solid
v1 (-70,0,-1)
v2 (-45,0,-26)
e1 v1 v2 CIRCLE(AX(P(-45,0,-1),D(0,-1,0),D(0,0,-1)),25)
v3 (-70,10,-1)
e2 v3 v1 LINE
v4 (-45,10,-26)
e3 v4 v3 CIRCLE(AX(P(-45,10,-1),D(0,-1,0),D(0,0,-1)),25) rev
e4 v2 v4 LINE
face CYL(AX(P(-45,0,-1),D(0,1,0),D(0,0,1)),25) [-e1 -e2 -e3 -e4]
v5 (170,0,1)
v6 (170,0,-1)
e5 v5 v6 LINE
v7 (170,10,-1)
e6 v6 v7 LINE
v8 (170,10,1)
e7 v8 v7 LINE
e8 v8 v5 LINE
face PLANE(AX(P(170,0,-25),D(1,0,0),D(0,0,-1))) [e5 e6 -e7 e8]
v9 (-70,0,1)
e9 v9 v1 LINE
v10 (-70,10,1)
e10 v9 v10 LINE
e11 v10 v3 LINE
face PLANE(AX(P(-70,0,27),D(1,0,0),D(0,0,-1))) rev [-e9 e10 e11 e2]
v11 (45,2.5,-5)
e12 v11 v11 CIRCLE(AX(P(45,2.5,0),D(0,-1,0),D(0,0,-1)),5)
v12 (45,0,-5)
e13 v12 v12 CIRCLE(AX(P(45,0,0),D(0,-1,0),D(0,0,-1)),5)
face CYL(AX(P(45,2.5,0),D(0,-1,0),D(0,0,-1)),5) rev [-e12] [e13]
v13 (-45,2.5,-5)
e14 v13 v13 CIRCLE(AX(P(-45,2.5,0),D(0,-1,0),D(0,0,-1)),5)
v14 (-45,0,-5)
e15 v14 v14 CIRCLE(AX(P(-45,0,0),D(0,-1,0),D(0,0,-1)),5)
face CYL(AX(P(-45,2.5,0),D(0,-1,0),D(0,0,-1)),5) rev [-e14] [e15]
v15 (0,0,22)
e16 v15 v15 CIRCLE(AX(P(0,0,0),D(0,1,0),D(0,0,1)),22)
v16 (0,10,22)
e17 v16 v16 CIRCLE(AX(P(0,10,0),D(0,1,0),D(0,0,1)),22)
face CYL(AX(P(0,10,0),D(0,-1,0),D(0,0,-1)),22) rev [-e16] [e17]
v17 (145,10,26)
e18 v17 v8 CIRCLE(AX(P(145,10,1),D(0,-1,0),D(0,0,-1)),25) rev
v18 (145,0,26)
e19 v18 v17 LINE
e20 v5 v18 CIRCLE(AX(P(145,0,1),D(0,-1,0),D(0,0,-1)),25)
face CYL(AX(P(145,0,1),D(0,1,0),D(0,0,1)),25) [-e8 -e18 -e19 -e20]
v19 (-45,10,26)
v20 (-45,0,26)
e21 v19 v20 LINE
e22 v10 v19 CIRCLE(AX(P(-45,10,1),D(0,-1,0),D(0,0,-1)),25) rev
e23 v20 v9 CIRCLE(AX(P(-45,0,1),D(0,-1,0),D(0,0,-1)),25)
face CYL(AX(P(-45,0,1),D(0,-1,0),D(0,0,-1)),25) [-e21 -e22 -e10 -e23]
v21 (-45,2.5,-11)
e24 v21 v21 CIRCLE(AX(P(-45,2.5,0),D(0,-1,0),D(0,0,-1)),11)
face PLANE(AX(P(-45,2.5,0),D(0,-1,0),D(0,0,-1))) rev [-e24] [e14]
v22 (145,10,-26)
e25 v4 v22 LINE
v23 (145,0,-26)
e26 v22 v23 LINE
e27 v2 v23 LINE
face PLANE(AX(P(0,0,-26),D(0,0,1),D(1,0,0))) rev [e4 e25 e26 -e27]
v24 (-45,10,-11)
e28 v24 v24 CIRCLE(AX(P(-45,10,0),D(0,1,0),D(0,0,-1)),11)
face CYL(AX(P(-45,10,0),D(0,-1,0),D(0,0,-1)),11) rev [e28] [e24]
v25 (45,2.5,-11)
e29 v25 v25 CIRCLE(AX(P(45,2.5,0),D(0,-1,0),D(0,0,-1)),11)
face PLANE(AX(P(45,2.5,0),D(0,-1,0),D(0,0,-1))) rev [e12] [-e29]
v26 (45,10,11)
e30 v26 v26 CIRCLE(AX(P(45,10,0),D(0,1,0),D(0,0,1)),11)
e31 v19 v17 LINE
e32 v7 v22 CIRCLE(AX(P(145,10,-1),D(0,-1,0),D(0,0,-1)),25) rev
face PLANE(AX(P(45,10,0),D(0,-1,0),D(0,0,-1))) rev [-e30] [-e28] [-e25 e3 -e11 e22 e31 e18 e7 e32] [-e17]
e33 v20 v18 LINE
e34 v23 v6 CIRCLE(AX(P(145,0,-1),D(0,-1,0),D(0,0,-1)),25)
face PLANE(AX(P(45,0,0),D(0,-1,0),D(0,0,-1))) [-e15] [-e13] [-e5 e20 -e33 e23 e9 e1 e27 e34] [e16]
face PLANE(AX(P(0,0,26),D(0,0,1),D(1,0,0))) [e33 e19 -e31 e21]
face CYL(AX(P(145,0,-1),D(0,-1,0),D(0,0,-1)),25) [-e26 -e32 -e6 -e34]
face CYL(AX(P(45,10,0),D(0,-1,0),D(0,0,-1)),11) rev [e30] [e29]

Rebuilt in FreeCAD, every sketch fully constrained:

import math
import FreeCAD as App
import Part
import Sketcher

V = App.Vector


def edges_at(feature, points):
    """Names of the edges that pass closest to the given points."""
    edges = feature.Shape.Edges
    near = lambda p: min(range(len(edges)), key=lambda i: edges[i].distToShape(Part.Vertex(*p))[0])
    return sorted({f"Edge{near(p) + 1}" for p in points})


def add_polygon(sketch, points):
    """Adds a closed chain of lines whose ends are joined by coincident constraints."""
    first, n = sketch.GeometryCount, len(points)
    for a, b in zip(points, points[1:] + points[:1]):
        sketch.addGeometry(Part.LineSegment(App.Vector(*a, 0), App.Vector(*b, 0)), False)
    for i in range(n):
        sketch.addConstraint(Sketcher.Constraint("Coincident", first + i, 2, first + (i + 1) % n, 1))

doc = App.newDocument("Part")
body = doc.addObject("PartDesign::Body", "Body")

# Sketch on XZ plane
sketch1 = body.newObject("Sketcher::SketchObject", "Sketch")
sketch1.AttachmentSupport = (doc.getObject("XZ_Plane"), [""])
sketch1.MapMode = "FlatFace"
sketch1.addGeometry([
    Part.LineSegment(V(-70, 27, 0), V(70, 27, 0)),  # 0
    Part.LineSegment(V(70, 27, 0), V(70, 0, 0)),  # 1
    Part.ArcOfCircle(Part.Circle(V(45, 0, 0), V(0, 0, 1), 25), math.radians(-90), math.radians(0)),  # 2
    Part.LineSegment(V(45, -25, 0), V(-45, -25, 0)),  # 3
    Part.ArcOfCircle(Part.Circle(V(-45, 0, 0), V(0, 0, 1), 25), math.radians(180), math.radians(270)),  # 4
    Part.LineSegment(V(-70, 0, 0), V(-70, 27, 0)),  # 5
    Part.Circle(V(-45, 0, 0), V(0, 0, 1), 11),  # 6
    Part.Circle(V(0, 0, 0), V(0, 0, 1), 22),  # 7
    Part.Circle(V(45, 0, 0), V(0, 0, 1), 11),  # 8
], False)
sketch1.addConstraint([
    Sketcher.Constraint("Coincident", 0, 2, 1, 1),
    Sketcher.Constraint("Tangent", 1, 2, 2, 2),
    Sketcher.Constraint("Tangent", 2, 1, 3, 1),
    Sketcher.Constraint("Tangent", 3, 2, 4, 2),
    Sketcher.Constraint("Tangent", 4, 1, 5, 1),
    Sketcher.Constraint("Coincident", 5, 2, 0, 1),
    Sketcher.Constraint("Horizontal", 0),
    Sketcher.Constraint("Vertical", 1),
    Sketcher.Constraint("Horizontal", 3),
    Sketcher.Constraint("Vertical", 5),
    Sketcher.Constraint("Coincident", 7, 3, -1, 1),
    Sketcher.Constraint("Coincident", 6, 3, 4, 3),
    Sketcher.Constraint("Coincident", 8, 3, 2, 3),
    Sketcher.Constraint("Equal", 2, 4),
    Sketcher.Constraint("Equal", 6, 8),
    Sketcher.Constraint("Symmetric", 2, 3, 4, 3, -1, 1),
    Sketcher.Constraint("Diameter", 6, 22.0),
    Sketcher.Constraint("Diameter", 7, 44.0),
    Sketcher.Constraint("Radius", 2, 25.0),
    Sketcher.Constraint("DistanceX", 0, 1, 0, 2, 140.0),
    Sketcher.Constraint("DistanceY", 1, 2, 1, 1, 27.0),
])
pad1 = body.newObject("PartDesign::Pad", "Pad")
pad1.Profile = sketch1
pad1.Length = 10
pad1.Reversed = True

# Sketch on XZ plane
sketch2 = body.newObject("Sketcher::SketchObject", "Sketch001")
sketch2.AttachmentSupport = (doc.getObject("XZ_Plane"), [""])
sketch2.MapMode = "FlatFace"
sketch2.AttachmentOffset = App.Placement(V(0, 0, -10), App.Rotation())
add_polygon(sketch2, [(-121, 27), (-70, 27), (-60, -8), (-45, -25), (-121, -25)])  # lines 0-4
sketch2.addConstraint([
    Sketcher.Constraint("Horizontal", 0),
    Sketcher.Constraint("Horizontal", 3),
    Sketcher.Constraint("Vertical", 4),
    Sketcher.Constraint("DistanceY", 4, 1, 4, 2, 52.0),
    Sketcher.Constraint("DistanceX", 0, 2, -1, 1, 70.0),
    Sketcher.Constraint("DistanceY", -1, 1, 0, 2, 27.0),
    Sketcher.Constraint("DistanceX", 2, 2, -1, 1, 45.0),
    Sketcher.Constraint("DistanceX", 0, 1, 0, 2, 51.413521),
    Sketcher.Constraint("Distance", 2, 22.523589),
    Sketcher.Constraint("DistanceY", 1, 2, -1, 1, 8.259929),
])
pad2 = body.newObject("PartDesign::Pad", "Pad001")
pad2.Profile = sketch2
pad2.Length = 10

# Sketch on XZ plane
sketch3 = body.newObject("Sketcher::SketchObject", "Sketch002")
sketch3.AttachmentSupport = (doc.getObject("XZ_Plane"), [""])
sketch3.MapMode = "FlatFace"
sketch3.AttachmentOffset = App.Placement(V(0, 0, -10), App.Rotation())
add_polygon(sketch3, [(-121, 27), (-70, 27), (-60, -8), (-45, -25), (-121, -25)])  # lines 0-4
sketch3.addConstraint([
    Sketcher.Constraint("Horizontal", 0),
    Sketcher.Constraint("Horizontal", 3),
    Sketcher.Constraint("Vertical", 4),
    Sketcher.Constraint("DistanceY", 4, 1, 4, 2, 52.0),
    Sketcher.Constraint("DistanceX", 0, 2, -1, 1, 70.0),
    Sketcher.Constraint("DistanceY", -1, 1, 0, 2, 27.0),
    Sketcher.Constraint("DistanceX", 2, 2, -1, 1, 45.0),
    Sketcher.Constraint("DistanceX", 0, 1, 0, 2, 51.413521),
    Sketcher.Constraint("Distance", 2, 22.523589),
    Sketcher.Constraint("DistanceY", 1, 2, -1, 1, 8.259929),
])
pocket1 = body.newObject("PartDesign::Pocket", "Pocket")
pocket1.Profile = sketch3
pocket1.Length = 10
pocket1.Reversed = True

# Sketch on XZ plane
sketch4 = body.newObject("Sketcher::SketchObject", "Sketch003")
sketch4.AttachmentSupport = (doc.getObject("XZ_Plane"), [""])
sketch4.MapMode = "FlatFace"
sketch4.AttachmentOffset = App.Placement(V(0, 0, -10), App.Rotation())
add_polygon(sketch4, [(-152, 27), (-70, 27), (-63, 18), (-58, -6), (-47, -18), (-45, -25), (-152, -25)])  # lines 0-6
sketch4.addConstraint([
    Sketcher.Constraint("Horizontal", 0),
    Sketcher.Constraint("Horizontal", 5),
    Sketcher.Constraint("Vertical", 6),
    Sketcher.Constraint("DistanceY", 6, 1, 6, 2, 52.0),
    Sketcher.Constraint("DistanceX", 0, 2, -1, 1, 70.0),
    Sketcher.Constraint("DistanceY", -1, 1, 0, 2, 27.0),
    Sketcher.Constraint("DistanceX", 4, 2, -1, 1, 45.0),
    Sketcher.Constraint("Distance", 3, 16.217098),
    Sketcher.Constraint("DistanceX", 0, 1, 0, 2, 82.396082),
    Sketcher.Constraint("DistanceY", -1, 1, 1, 2, 17.674579),
    Sketcher.Constraint("DistanceY", 2, 2, -1, 1, 5.920141),
    Sketcher.Constraint("DistanceX", 1, 2, 2, 2, 5.056011),
    Sketcher.Constraint("DistanceX", 1, 2, 3, 2, 15.649559),
    Sketcher.Constraint("Distance", 1, 11.839135),
])
pad3 = body.newObject("PartDesign::Pad", "Pad002")
pad3.Profile = sketch4
pad3.Length = 10

# Sketch on XZ plane
sketch5 = body.newObject("Sketcher::SketchObject", "Sketch004")
sketch5.AttachmentSupport = (doc.getObject("XZ_Plane"), [""])
sketch5.MapMode = "FlatFace"
sketch5.AttachmentOffset = App.Placement(V(0, 0, -10), App.Rotation())
add_polygon(sketch5, [(-170, 27), (-147, 27), (-136, 8), (-144, -13), (-152, -25), (-170, -25)])  # lines 0-5
sketch5.addConstraint([
    Sketcher.Constraint("Horizontal", 0),
    Sketcher.Constraint("Horizontal", 4),
    Sketcher.Constraint("Vertical", 5),
    Sketcher.Constraint("DistanceY", 5, 1, 5, 2, 52.0),
    Sketcher.Constraint("DistanceY", -1, 1, 0, 2, 27.0),
    Sketcher.Constraint("DistanceX", 4, 2, -1, 1, 170.0),
    Sketcher.Constraint("DistanceX", 4, 2, 4, 1, 17.603918),
    Sketcher.Constraint("Distance", 3, 15.196591),
    Sketcher.Constraint("DistanceX", 0, 1, 0, 2, 22.740115),
    Sketcher.Constraint("DistanceX", 1, 2, -1, 1, 136.049251),
    Sketcher.Constraint("DistanceX", 2, 2, -1, 1, 143.609911),
    Sketcher.Constraint("DistanceY", 2, 2, 1, 2, 20.335569),
])
pad4 = body.newObject("PartDesign::Pad", "Pad003")
pad4.Profile = sketch5
pad4.Length = 10

# Sketch on XZ plane
sketch6 = body.newObject("Sketcher::SketchObject", "Sketch005")
sketch6.AttachmentSupport = (doc.getObject("XZ_Plane"), [""])
sketch6.MapMode = "FlatFace"
sketch6.addGeometry([
    Part.Circle(V(-45, 0, 0), V(0, 0, 1), 13),
    Part.Circle(V(-45, 0, 0), V(0, 0, 1), 5),
    Part.Circle(V(45, 0, 0), V(0, 0, 1), 13),
    Part.Circle(V(45, 0, 0), V(0, 0, 1), 5),
], False)
sketch6.addConstraint([
    Sketcher.Constraint("Coincident", 1, 3, 0, 3),
    Sketcher.Constraint("Coincident", 3, 3, 2, 3),
    Sketcher.Constraint("Equal", 1, 3),
    Sketcher.Constraint("Symmetric", 0, 3, 2, 3, -1, 1),
    Sketcher.Constraint("PointOnObject", 0, 3, -1),
    Sketcher.Constraint("Diameter", 1, 10.0),
    Sketcher.Constraint("DistanceX", 0, 3, -1, 1, 45.0),
    Sketcher.Constraint("Diameter", 2, 25.297949),
    Sketcher.Constraint("Diameter", 0, 25.582618),
])
pad5 = body.newObject("PartDesign::Pad", "Pad004")
pad5.Profile = sketch6
pad5.Length = 2.5
pad5.Reversed = True

# Sketch on XZ plane
sketch7 = body.newObject("Sketcher::SketchObject", "Sketch006")
sketch7.AttachmentSupport = (doc.getObject("XZ_Plane"), [""])
sketch7.MapMode = "FlatFace"
sketch7.AttachmentOffset = App.Placement(V(0, 0, -10), App.Rotation())
add_polygon(sketch7, [(-70, 27), (-70, -25), (-81, -84), (-215, -76), (-218, 22), (-150, 85)])  # lines 0-5
sketch7.addConstraint([
    Sketcher.Constraint("Vertical", 0),
    Sketcher.Constraint("DistanceY", 0, 2, 0, 1, 52.0),
    Sketcher.Constraint("DistanceX", 0, 2, -1, 1, 70.0),
    Sketcher.Constraint("DistanceY", 0, 2, -1, 1, 25.0),
    Sketcher.Constraint("Distance", 5, 98.790098),
    Sketcher.Constraint("DistanceY", 1, 2, -1, 1, 84.263901),
    Sketcher.Constraint("Distance", 2, 134.011618),
    Sketcher.Constraint("Distance", 4, 91.87871),
    Sketcher.Constraint("DistanceX", 2, 2, -1, 1, 214.684311),
    Sketcher.Constraint("DistanceX", 3, 2, -1, 1, 217.522149),
    Sketcher.Constraint("DistanceY", -1, 1, 4, 2, 84.57726),
    Sketcher.Constraint("DistanceY", 2, 2, 3, 2, 97.61076),
])
pocket2 = body.newObject("PartDesign::Pocket", "Pocket001")
pocket2.Profile = sketch7
pocket2.Length = 10
pocket2.Reversed = True
doc.recompute()

fillet = body.newObject("PartDesign::Fillet", "Fillet")
fillet.Base = (pocket2, edges_at(pocket2, [(-70, 5, -25)]))
fillet.Radius = 25

# Sketch on XZ plane
sketch8 = body.newObject("Sketcher::SketchObject", "Sketch007")
sketch8.AttachmentSupport = (doc.getObject("XZ_Plane"), [""])
sketch8.MapMode = "FlatFace"
sketch8.AttachmentOffset = App.Placement(V(0, 0, -10), App.Rotation())
add_polygon(sketch8, [(170, -25), (45, -25), (60, 0), (70, 27), (170, 27)])  # lines 0-4
sketch8.addConstraint([
    Sketcher.Constraint("Horizontal", 0),
    Sketcher.Constraint("Horizontal", 3),
    Sketcher.Constraint("Vertical", 4),
    Sketcher.Constraint("PointOnObject", 1, 2, -1),
    Sketcher.Constraint("DistanceX", 0, 2, 0, 1, 125.0),
    Sketcher.Constraint("DistanceX", 3, 1, 3, 2, 100.0),
    Sketcher.Constraint("DistanceY", 4, 2, 4, 1, 52.0),
    Sketcher.Constraint("DistanceX", -1, 1, 0, 2, 45.0),
    Sketcher.Constraint("DistanceY", 0, 2, -1, 1, 25.0),
    Sketcher.Constraint("DistanceX", -1, 1, 1, 2, 59.97126),
])
pad6 = body.newObject("PartDesign::Pad", "Pad005")
pad6.Profile = sketch8
pad6.Length = 10
doc.recompute()

fillet2 = body.newObject("PartDesign::Fillet", "Fillet001")
fillet2.Base = (pad6, edges_at(pad6, [(170, 5, -25)]))
fillet2.Radius = 25
doc.recompute()

fillet3 = body.newObject("PartDesign::Fillet", "Fillet002")
fillet3.Base = (fillet2, edges_at(fillet2, [(-70, 5, 27), (170, 5, 27)]))
fillet3.Radius = 25

# Sketch on XZ plane
sketch9 = body.newObject("Sketcher::SketchObject", "Sketch008")
sketch9.AttachmentSupport = (doc.getObject("XZ_Plane"), [""])
sketch9.MapMode = "FlatFace"
sketch9.AttachmentOffset = App.Placement(V(0, 0, -10), App.Rotation())
add_polygon(sketch9, [(168, 53), (170, 26), (-70, 26), (-6, 84)])  # lines 0-3
sketch9.addConstraint([
    Sketcher.Constraint("Horizontal", 1),
    Sketcher.Constraint("DistanceX", 1, 2, 1, 1, 240.0),
    Sketcher.Constraint("DistanceX", -1, 1, 0, 2, 170.0),
    Sketcher.Constraint("DistanceY", -1, 1, 0, 2, 26.0),
    Sketcher.Constraint("Distance", 0, 27.13967),
    Sketcher.Constraint("DistanceX", 2, 2, -1, 1, 6.059889),
    Sketcher.Constraint("DistanceY", -1, 1, 2, 2, 84.12332),
    Sketcher.Constraint("DistanceX", -1, 1, 3, 2, 168.265392),
])
pocket3 = body.newObject("PartDesign::Pocket", "Pocket002")
pocket3.Profile = sketch9
pocket3.Length = 10
pocket3.Reversed = True

# Sketch on XZ plane
sketch10 = body.newObject("Sketcher::SketchObject", "Sketch009")
sketch10.AttachmentSupport = (doc.getObject("XZ_Plane"), [""])
sketch10.MapMode = "FlatFace"
sketch10.AttachmentOffset = App.Placement(V(0, 0, -10), App.Rotation())
add_polygon(sketch10, [(-14.391351, 23.974647), (-57.93092, 15.319191), (-70, 0), (-70, 26), (170, 26), (170, 0), (125.93196, 21.351782)])  # lines 0-6
sketch10.addConstraint([
    Sketcher.Constraint("Vertical", 2),
    Sketcher.Constraint("Horizontal", 3),
    Sketcher.Constraint("Vertical", 4),
    Sketcher.Constraint("PointOnObject", 1, 2, -1),
    Sketcher.Constraint("PointOnObject", 4, 2, -1),
    Sketcher.Constraint("DistanceX", 3, 1, 3, 2, 240.0),
    Sketcher.Constraint("DistanceY", 2, 1, 2, 2, 26.0),
    Sketcher.Constraint("DistanceX", 1, 2, -1, 1, 70.0),
    Sketcher.Constraint("Distance", 6, 140.347821),
    Sketcher.Constraint("DistanceX", 0, 2, -1, 1, 57.93092),
    Sketcher.Constraint("DistanceY", -1, 1, 0, 2, 15.319191),
    Sketcher.Constraint("DistanceX", -1, 1, 5, 2, 125.93196),
    Sketcher.Constraint("DistanceY", -1, 1, 5, 2, 21.351782),
    Sketcher.Constraint("DistanceX", 6, 2, -1, 1, 14.391351),
])
pad7 = body.newObject("PartDesign::Pad", "Pad006")
pad7.Profile = sketch10
pad7.Length = 10

# Sketch on XZ plane
sketch11 = body.newObject("Sketcher::SketchObject", "Sketch010")
sketch11.AttachmentSupport = (doc.getObject("XZ_Plane"), [""])
sketch11.MapMode = "FlatFace"
sketch11.AttachmentOffset = App.Placement(V(0, 0, -10), App.Rotation())
add_polygon(sketch11, [(-70, 0), (-57, -13), (-32, -17), (-3, -23), (15, -22), (115, -19), (170, 0), (170, -26), (-70, -26)])  # lines 0-8
sketch11.addConstraint([
    Sketcher.Constraint("Vertical", 6),
    Sketcher.Constraint("Horizontal", 7),
    Sketcher.Constraint("Vertical", 8),
    Sketcher.Constraint("PointOnObject", 5, 2, -1),
    Sketcher.Constraint("PointOnObject", 8, 2, -1),
    Sketcher.Constraint("DistanceX", 7, 2, 7, 1, 240.0),
    Sketcher.Constraint("DistanceY", 6, 2, 6, 1, 26.0),
    Sketcher.Constraint("DistanceX", -1, 1, 5, 2, 170.0),
    Sketcher.Constraint("DistanceY", 3, 2, -1, 1, 21.925501),
    Sketcher.Constraint("DistanceX", 1, 2, 4, 2, 146.8597),
    Sketcher.Constraint("Distance", 0, 18.127059),
    Sketcher.Constraint("Distance", 1, 25.97676),
    Sketcher.Constraint("Distance", 4, 100.251469),
    Sketcher.Constraint("DistanceX", 1, 2, -1, 1, 31.681489),
    Sketcher.Constraint("DistanceY", 2, 2, -1, 1, 23.268831),
    Sketcher.Constraint("DistanceY", 1, 2, 0, 2, 3.772519),
    Sketcher.Constraint("DistanceX", 0, 2, 2, 2, 54.15708),
    Sketcher.Constraint("DistanceY", 4, 2, 0, 2, 5.500481),
])
pad8 = body.newObject("PartDesign::Pad", "Pad007")
pad8.Profile = sketch11
pad8.Length = 10
doc.recompute()

fillet4 = body.newObject("PartDesign::Fillet", "Fillet003")
fillet4.Base = (pad8, edges_at(pad8, [
    (170, 5, 26),
    (-70, 5, 26),
    (-70, 5, -26),
    (170, 5, -26),
]))
fillet4.Radius = 25

doc.recompute()
